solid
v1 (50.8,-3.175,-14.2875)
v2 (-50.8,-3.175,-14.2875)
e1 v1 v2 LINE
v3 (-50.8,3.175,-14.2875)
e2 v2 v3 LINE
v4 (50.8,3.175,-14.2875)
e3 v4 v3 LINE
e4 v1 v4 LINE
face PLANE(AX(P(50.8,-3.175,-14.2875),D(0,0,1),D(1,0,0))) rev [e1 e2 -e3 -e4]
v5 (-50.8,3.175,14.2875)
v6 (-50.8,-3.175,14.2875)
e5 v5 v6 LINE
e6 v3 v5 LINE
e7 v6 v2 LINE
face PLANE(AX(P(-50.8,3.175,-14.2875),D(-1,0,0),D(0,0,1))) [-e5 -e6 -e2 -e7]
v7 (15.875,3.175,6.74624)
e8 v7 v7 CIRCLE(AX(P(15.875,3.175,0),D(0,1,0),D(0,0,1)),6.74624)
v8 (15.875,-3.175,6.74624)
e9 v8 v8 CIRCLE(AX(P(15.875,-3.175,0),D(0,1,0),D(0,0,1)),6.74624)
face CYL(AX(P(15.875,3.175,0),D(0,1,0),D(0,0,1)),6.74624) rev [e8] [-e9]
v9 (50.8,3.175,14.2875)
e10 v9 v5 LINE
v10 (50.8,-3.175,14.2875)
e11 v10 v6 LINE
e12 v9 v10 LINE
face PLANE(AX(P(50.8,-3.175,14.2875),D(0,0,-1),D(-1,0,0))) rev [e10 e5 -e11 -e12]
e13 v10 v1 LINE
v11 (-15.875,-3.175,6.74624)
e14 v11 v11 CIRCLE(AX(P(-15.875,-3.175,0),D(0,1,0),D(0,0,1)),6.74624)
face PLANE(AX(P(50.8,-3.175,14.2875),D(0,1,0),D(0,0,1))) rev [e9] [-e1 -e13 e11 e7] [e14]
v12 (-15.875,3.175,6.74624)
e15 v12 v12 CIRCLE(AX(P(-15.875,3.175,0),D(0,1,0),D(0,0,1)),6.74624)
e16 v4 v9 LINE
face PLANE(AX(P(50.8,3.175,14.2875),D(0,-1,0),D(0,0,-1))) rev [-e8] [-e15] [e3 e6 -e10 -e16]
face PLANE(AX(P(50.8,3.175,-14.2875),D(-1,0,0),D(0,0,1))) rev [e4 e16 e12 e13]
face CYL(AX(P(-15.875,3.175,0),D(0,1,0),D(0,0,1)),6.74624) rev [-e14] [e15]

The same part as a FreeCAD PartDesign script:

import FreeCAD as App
import Part
import Sketcher
from FreeCAD import Vector
Q = App.Units.Quantity


def add_polygon(sketch, points):
    """Adds a closed chain of lines whose ends are joined by coincident constraints."""
    first, n = sketch.GeometryCount, len(points)
    for a, b in zip(points, points[1:] + points[:1]):
        sketch.addGeometry(Part.LineSegment(App.Vector(*a, 0), App.Vector(*b, 0)), False)
    for i in range(n):
        sketch.addConstraint(Sketcher.Constraint("Coincident", first + i, 2, first + (i + 1) % n, 1))

doc = App.newDocument("Part")
body = doc.addObject("PartDesign::Body", "Body")

# Sketch on YZ plane
sketch1 = body.newObject("Sketcher::SketchObject", "Sketch")
sketch1.AttachmentSupport = (doc.getObject("YZ_Plane"), [""])
sketch1.MapMode = "FlatFace"
add_polygon(sketch1, [(3.175, 14.2875), (-3.175, 14.2875), (-3.175, -14.2875), (3.175, -14.2875)])  # lines 0-3
sketch1.addConstraint([
    Sketcher.Constraint("Horizontal", 0),
    Sketcher.Constraint("Vertical", 1),
    Sketcher.Constraint("Horizontal", 2),
    Sketcher.Constraint("Vertical", 3),
    Sketcher.Constraint("Symmetric", 0, 2, 2, 2, -1, 1),
    Sketcher.Constraint("DistanceX", 0, 2, 0, 1, Q("0.25 in")),
    Sketcher.Constraint("DistanceY", 1, 2, 1, 1, Q("1.125 in")),
])
pad1 = body.newObject("PartDesign::Pad", "Pad")
pad1.Profile = sketch1
pad1.Type = "TwoLengths"
pad1.Length = Q("2 in")
pad1.Length2 = Q("2 in")

# Sketch on XZ plane
sketch2 = body.newObject("Sketcher::SketchObject", "Sketch001")
sketch2.AttachmentSupport = (doc.getObject("XZ_Plane"), [""])
sketch2.MapMode = "FlatFace"
sketch2.AttachmentOffset = App.Placement(Vector(0, 0, -0.125 * 25.4), App.Rotation())
sketch2.addGeometry([
    Part.Circle(Vector(-15.875, 0, 0), Vector(0, 0, 1), 6.74624),
    Part.Circle(Vector(15.875, 0, 0), Vector(0, 0, 1), 6.74624),
], False)
sketch2.addConstraint([
    Sketcher.Constraint("Equal", 0, 1),
    Sketcher.Constraint("Symmetric", 0, 3, 1, 3, -1, 1),
    Sketcher.Constraint("PointOnObject", 0, 3, -1),
    Sketcher.Constraint("Diameter", 0, Q("0.5312 in")),
    Sketcher.Constraint("DistanceX", 0, 3, 1, 3, Q("1.25 in")),
])
doc.recompute()
hole = body.newObject("PartDesign::Hole", "Hole")
hole.Profile = sketch2
hole.ThreadType = "None"
hole.Diameter = Q("0.5312 in")
hole.DepthType = "ThroughAll"
hole.Reversed = True

doc.recompute()
